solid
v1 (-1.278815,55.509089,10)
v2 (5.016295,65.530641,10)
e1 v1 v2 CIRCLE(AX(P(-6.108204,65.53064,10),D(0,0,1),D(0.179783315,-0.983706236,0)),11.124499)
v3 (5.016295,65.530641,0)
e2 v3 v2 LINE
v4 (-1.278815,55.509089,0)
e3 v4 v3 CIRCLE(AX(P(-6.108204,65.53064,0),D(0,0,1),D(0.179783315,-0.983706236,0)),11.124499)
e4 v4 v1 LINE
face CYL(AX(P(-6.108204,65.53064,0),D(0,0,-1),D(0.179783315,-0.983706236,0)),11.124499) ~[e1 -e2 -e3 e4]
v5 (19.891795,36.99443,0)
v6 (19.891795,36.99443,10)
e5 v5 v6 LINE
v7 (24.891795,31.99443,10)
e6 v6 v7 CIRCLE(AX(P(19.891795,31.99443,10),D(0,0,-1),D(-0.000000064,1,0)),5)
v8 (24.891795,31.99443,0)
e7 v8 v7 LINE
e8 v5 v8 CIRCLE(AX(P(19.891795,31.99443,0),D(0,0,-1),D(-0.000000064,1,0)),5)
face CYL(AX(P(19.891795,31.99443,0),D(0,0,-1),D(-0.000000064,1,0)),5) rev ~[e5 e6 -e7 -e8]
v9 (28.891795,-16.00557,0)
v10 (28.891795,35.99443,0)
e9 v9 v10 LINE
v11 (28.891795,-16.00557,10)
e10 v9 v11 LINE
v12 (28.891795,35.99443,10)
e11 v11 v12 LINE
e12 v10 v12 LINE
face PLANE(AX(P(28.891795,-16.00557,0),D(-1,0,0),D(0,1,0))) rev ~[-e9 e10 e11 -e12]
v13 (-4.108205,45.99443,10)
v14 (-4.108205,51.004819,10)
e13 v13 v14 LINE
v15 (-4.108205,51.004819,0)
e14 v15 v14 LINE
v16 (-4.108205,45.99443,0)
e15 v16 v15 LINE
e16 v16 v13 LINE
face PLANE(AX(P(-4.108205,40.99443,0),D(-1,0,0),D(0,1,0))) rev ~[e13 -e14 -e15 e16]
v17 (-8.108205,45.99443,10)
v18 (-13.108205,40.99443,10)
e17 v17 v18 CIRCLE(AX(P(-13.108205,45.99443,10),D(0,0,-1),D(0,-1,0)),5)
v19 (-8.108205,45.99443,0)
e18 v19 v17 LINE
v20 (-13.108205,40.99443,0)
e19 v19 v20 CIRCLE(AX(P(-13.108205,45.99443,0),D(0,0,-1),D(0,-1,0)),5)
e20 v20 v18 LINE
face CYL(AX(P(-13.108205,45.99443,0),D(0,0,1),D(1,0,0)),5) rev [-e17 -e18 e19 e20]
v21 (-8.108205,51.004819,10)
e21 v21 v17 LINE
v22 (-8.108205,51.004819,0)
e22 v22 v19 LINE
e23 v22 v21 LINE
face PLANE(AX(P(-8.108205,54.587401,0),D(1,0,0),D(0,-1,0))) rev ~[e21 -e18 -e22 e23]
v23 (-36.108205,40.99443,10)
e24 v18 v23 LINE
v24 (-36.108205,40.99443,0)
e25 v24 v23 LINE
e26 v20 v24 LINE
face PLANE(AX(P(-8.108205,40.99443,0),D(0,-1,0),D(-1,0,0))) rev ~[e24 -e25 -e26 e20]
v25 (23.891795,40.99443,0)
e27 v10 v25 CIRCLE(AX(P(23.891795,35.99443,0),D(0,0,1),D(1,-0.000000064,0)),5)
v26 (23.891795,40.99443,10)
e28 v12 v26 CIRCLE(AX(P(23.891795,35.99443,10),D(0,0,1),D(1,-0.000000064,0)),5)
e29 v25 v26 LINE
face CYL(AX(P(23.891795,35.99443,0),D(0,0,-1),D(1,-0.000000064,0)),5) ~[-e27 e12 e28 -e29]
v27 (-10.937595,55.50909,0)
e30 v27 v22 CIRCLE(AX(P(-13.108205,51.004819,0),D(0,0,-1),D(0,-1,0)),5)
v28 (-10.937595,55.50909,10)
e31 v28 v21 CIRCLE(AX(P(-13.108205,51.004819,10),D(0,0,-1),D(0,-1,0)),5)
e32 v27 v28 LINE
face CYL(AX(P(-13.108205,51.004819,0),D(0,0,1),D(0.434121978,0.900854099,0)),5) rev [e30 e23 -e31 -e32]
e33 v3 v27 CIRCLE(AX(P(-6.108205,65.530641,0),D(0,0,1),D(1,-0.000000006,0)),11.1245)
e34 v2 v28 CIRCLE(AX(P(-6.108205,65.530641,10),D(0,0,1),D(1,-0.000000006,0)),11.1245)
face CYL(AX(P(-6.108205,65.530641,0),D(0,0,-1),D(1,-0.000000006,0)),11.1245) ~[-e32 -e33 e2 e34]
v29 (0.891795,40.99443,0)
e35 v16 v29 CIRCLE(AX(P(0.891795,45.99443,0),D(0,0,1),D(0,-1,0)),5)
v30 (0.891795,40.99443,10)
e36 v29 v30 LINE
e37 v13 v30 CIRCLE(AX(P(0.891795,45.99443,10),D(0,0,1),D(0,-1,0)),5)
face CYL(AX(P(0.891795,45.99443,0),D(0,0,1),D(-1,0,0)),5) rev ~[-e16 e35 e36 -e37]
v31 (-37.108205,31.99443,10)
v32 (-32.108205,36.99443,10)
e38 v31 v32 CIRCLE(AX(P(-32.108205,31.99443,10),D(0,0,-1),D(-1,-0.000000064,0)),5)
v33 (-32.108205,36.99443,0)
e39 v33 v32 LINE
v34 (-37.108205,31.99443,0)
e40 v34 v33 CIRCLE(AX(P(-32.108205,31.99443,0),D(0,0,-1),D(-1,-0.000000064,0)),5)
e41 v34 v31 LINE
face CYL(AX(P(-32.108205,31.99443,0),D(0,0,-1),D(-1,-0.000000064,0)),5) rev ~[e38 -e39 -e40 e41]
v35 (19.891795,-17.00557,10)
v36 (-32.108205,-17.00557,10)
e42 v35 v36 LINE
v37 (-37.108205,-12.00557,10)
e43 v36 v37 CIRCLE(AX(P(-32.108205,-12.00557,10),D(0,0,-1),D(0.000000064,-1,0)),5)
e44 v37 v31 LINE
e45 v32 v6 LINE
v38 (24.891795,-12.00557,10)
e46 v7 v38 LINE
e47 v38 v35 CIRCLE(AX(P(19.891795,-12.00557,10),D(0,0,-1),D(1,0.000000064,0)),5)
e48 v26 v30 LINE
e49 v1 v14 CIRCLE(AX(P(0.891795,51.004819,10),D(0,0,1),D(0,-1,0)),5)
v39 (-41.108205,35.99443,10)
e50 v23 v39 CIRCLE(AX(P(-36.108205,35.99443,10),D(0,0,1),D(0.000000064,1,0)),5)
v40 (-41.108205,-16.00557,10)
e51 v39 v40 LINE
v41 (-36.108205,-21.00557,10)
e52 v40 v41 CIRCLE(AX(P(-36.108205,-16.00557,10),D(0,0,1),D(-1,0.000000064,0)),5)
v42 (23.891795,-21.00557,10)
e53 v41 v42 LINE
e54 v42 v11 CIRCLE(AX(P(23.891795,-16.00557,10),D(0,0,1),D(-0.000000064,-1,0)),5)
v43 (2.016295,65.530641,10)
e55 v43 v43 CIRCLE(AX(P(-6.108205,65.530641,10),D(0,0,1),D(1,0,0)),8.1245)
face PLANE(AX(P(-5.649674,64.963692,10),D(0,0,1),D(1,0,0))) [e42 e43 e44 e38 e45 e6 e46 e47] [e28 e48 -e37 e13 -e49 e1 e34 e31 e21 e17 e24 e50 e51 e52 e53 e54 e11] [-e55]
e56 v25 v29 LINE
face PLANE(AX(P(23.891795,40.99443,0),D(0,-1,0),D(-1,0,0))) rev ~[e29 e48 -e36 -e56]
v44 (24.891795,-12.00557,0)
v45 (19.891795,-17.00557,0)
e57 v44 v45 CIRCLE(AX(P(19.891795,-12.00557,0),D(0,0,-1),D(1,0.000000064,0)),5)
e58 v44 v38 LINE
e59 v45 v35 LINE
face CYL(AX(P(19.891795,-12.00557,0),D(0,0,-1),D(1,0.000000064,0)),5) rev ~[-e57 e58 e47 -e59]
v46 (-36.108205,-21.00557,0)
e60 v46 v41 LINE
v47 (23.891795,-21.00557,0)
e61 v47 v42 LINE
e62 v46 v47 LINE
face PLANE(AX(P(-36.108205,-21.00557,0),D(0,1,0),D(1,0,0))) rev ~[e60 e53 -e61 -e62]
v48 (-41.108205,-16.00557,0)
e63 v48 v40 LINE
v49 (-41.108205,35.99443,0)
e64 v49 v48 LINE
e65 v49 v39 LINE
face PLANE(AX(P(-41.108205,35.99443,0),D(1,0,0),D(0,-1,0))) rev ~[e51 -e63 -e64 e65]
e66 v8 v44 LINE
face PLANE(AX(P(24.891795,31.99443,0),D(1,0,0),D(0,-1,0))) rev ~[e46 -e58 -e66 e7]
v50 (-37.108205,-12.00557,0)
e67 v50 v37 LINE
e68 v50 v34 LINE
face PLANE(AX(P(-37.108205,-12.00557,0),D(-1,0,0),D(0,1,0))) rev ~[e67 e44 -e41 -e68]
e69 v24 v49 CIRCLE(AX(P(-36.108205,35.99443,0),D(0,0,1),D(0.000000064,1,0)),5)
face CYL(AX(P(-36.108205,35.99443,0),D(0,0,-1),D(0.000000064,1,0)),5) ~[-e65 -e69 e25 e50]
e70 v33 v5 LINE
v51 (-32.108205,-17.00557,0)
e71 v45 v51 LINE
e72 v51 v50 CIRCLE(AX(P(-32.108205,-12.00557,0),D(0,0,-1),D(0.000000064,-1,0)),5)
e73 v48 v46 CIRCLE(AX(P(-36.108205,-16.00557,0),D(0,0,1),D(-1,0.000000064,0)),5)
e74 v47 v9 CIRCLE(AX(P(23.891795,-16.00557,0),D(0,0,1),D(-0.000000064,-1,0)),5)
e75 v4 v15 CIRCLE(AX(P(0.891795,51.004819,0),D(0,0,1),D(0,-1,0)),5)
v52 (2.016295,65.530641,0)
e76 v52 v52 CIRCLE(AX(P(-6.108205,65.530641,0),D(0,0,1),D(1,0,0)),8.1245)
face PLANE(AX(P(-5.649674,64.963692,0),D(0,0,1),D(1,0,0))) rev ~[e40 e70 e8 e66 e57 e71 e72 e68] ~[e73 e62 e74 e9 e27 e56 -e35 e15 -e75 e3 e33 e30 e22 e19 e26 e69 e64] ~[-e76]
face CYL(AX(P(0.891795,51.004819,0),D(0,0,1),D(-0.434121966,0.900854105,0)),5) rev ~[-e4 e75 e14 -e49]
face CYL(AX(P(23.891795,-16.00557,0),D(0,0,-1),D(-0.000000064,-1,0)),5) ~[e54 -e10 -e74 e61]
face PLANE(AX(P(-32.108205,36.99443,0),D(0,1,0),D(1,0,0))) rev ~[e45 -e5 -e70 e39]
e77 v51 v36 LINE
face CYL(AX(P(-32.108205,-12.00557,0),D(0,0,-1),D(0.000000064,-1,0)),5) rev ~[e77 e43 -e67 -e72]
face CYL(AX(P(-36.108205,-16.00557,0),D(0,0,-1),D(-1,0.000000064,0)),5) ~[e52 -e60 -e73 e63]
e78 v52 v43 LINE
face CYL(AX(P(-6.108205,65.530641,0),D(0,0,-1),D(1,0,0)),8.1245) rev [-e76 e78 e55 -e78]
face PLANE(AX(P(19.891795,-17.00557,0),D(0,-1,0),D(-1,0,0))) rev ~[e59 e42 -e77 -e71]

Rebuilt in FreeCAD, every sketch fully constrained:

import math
import FreeCAD as App
import Part
import Sketcher


def edges_at(feature, points):
    """Names of the edges that pass closest to the given points."""
    edges = feature.Shape.Edges
    near = lambda p: min(range(len(edges)), key=lambda i: edges[i].distToShape(Part.Vertex(*p))[0])
    return sorted({f"Edge{near(p) + 1}" for p in points})

doc = App.newDocument("Part")
body = doc.addObject("PartDesign::Body", "Body")

sketch1 = body.newObject("Sketcher::SketchObject", "Sketch")
sketch1.AttachmentSupport = (doc.getObject("XY_Plane"), [""])
sketch1.MapMode = "FlatFace"
sketch1.addGeometry(Part.ArcOfCircle(Part.Circle(App.Vector(-6.1, 65.5, 0), App.Vector(0, 0, 1), 11.1), math.radians(0), math.radians(260)), False)
sketch1.addGeometry(Part.LineSegment(App.Vector(-8.1, 54.6, 0), App.Vector(-8.1, 41, 0)), False)
sketch1.addGeometry(Part.LineSegment(App.Vector(-8.1, 41, 0), App.Vector(-36.1, 41, 0)), False)
sketch1.addGeometry(Part.ArcOfCircle(Part.Circle(App.Vector(-36.1, 36, 0), App.Vector(0, 0, 1), 5), math.radians(90), math.radians(180)), False)
sketch1.addGeometry(Part.LineSegment(App.Vector(-41.1, 36, 0), App.Vector(-41.1, -16, 0)), False)
sketch1.addGeometry(Part.ArcOfCircle(Part.Circle(App.Vector(-36.1, -16, 0), App.Vector(0, 0, 1), 5), math.radians(180), math.radians(270)), False)
sketch1.addGeometry(Part.LineSegment(App.Vector(-36.1, -21, 0), App.Vector(23.9, -21, 0)), False)
sketch1.addGeometry(Part.ArcOfCircle(Part.Circle(App.Vector(23.9, -16, 0), App.Vector(0, 0, 1), 5), math.radians(-90), math.radians(0)), False)
sketch1.addGeometry(Part.LineSegment(App.Vector(28.9, -16, 0), App.Vector(28.9, 36, 0)), False)
sketch1.addGeometry(Part.ArcOfCircle(Part.Circle(App.Vector(23.9, 36, 0), App.Vector(0, 0, 1), 5), math.radians(0), math.radians(90)), False)
sketch1.addGeometry(Part.LineSegment(App.Vector(23.9, 41, 0), App.Vector(-4.1, 41, 0)), False)
sketch1.addGeometry(Part.LineSegment(App.Vector(-4.1, 41, 0), App.Vector(-4.1, 54.6, 0)), False)
sketch1.addGeometry(Part.ArcOfCircle(Part.Circle(App.Vector(-6.1, 65.5, 0), App.Vector(0, 0, 1), 11.1), math.radians(-80), math.radians(0)), False)
sketch1.addGeometry(Part.LineSegment(App.Vector(-37.1, -12, 0), App.Vector(-37.1, 32, 0)), False)
sketch1.addGeometry(Part.ArcOfCircle(Part.Circle(App.Vector(-32.1, 32, 0), App.Vector(0, 0, 1), 5), math.radians(90), math.radians(180)), False)
sketch1.addGeometry(Part.LineSegment(App.Vector(-32.1, 37, 0), App.Vector(19.9, 37, 0)), False)
sketch1.addGeometry(Part.ArcOfCircle(Part.Circle(App.Vector(19.9, 32, 0), App.Vector(0, 0, 1), 5), math.radians(0), math.radians(90)), False)
sketch1.addGeometry(Part.LineSegment(App.Vector(24.9, 32, 0), App.Vector(24.9, -12, 0)), False)
sketch1.addGeometry(Part.ArcOfCircle(Part.Circle(App.Vector(19.9, -12, 0), App.Vector(0, 0, 1), 5), math.radians(-90), math.radians(0)), False)
sketch1.addGeometry(Part.LineSegment(App.Vector(19.9, -17, 0), App.Vector(-32.1, -17, 0)), False)
sketch1.addGeometry(Part.ArcOfCircle(Part.Circle(App.Vector(-32.1, -12, 0), App.Vector(0, 0, 1), 5), math.radians(180), math.radians(270)), False)
sketch1.addGeometry(Part.Circle(App.Vector(-6.1, 65.5, 0), App.Vector(0, 0, 1), 8.1), False)
sketch1.addConstraint(Sketcher.Constraint("Coincident", 0, 2, 1, 1))
sketch1.addConstraint(Sketcher.Constraint("Coincident", 1, 2, 2, 1))
sketch1.addConstraint(Sketcher.Constraint("Tangent", 2, 2, 3, 1))
sketch1.addConstraint(Sketcher.Constraint("Tangent", 3, 2, 4, 1))
sketch1.addConstraint(Sketcher.Constraint("Tangent", 4, 2, 5, 1))
sketch1.addConstraint(Sketcher.Constraint("Tangent", 5, 2, 6, 1))
sketch1.addConstraint(Sketcher.Constraint("Tangent", 6, 2, 7, 1))
sketch1.addConstraint(Sketcher.Constraint("Tangent", 7, 2, 8, 1))
sketch1.addConstraint(Sketcher.Constraint("Tangent", 8, 2, 9, 1))
sketch1.addConstraint(Sketcher.Constraint("Tangent", 9, 2, 10, 1))
sketch1.addConstraint(Sketcher.Constraint("Coincident", 10, 2, 11, 1))
sketch1.addConstraint(Sketcher.Constraint("Coincident", 11, 2, 12, 1))
sketch1.addConstraint(Sketcher.Constraint("Tangent", 12, 2, 0, 1))
sketch1.addConstraint(Sketcher.Constraint("Tangent", 13, 2, 14, 2))
sketch1.addConstraint(Sketcher.Constraint("Tangent", 14, 1, 15, 1))
sketch1.addConstraint(Sketcher.Constraint("Tangent", 15, 2, 16, 2))
sketch1.addConstraint(Sketcher.Constraint("Tangent", 16, 1, 17, 1))
sketch1.addConstraint(Sketcher.Constraint("Tangent", 17, 2, 18, 2))
sketch1.addConstraint(Sketcher.Constraint("Tangent", 18, 1, 19, 1))
sketch1.addConstraint(Sketcher.Constraint("Tangent", 19, 2, 20, 2))
sketch1.addConstraint(Sketcher.Constraint("Tangent", 20, 1, 13, 1))
sketch1.addConstraint(Sketcher.Constraint("Vertical", 1))
sketch1.addConstraint(Sketcher.Constraint("Horizontal", 2))
sketch1.addConstraint(Sketcher.Constraint("Vertical", 4))
sketch1.addConstraint(Sketcher.Constraint("Horizontal", 6))
sketch1.addConstraint(Sketcher.Constraint("Vertical", 8))
sketch1.addConstraint(Sketcher.Constraint("Horizontal", 10))
sketch1.addConstraint(Sketcher.Constraint("Vertical", 11))
sketch1.addConstraint(Sketcher.Constraint("Vertical", 13))
sketch1.addConstraint(Sketcher.Constraint("Horizontal", 15))
sketch1.addConstraint(Sketcher.Constraint("Vertical", 17))
sketch1.addConstraint(Sketcher.Constraint("Horizontal", 19))
sketch1.addConstraint(Sketcher.Constraint("Coincident", 21, 3, 0, 3))
sketch1.addConstraint(Sketcher.Constraint("Equal", 3, 5))
sketch1.addConstraint(Sketcher.Constraint("Equal", 5, 7))
sketch1.addConstraint(Sketcher.Constraint("Equal", 7, 9))
sketch1.addConstraint(Sketcher.Constraint("Equal", 0, 12))
sketch1.addConstraint(Sketcher.Constraint("Equal", 9, 14))
sketch1.addConstraint(Sketcher.Constraint("Equal", 14, 16))
sketch1.addConstraint(Sketcher.Constraint("Equal", 16, 18))
sketch1.addConstraint(Sketcher.Constraint("Equal", 18, 20))
sketch1.addConstraint(Sketcher.Constraint("Horizontal", 3, 3, 9, 3))
sketch1.addConstraint(Sketcher.Constraint("Horizontal", 0, 2, 11, 2))
sketch1.addConstraint(Sketcher.Constraint("Horizontal", 21, 3, 12, 2))
sketch1.addConstraint(Sketcher.Constraint("Equal", 2, 10))
sketch1.addConstraint(Sketcher.Constraint("Equal", 19, 4))
sketch1.addConstraint(Sketcher.Constraint("Radius", 3, 5.0))
sketch1.addConstraint(Sketcher.Constraint("DistanceX", 2, 2, 2, 1, 28.0))
sketch1.addConstraint(Sketcher.Constraint("DistanceX", 6, 1, 6, 2, 60.0))
sketch1.addConstraint(Sketcher.Constraint("DistanceX", 15, 1, 15, 2, 52.0))
sketch1.addConstraint(Sketcher.Constraint("DistanceY", 13, 1, 13, 2, 44.0))
sketch1.addConstraint(Sketcher.Constraint("Diameter", 21, 16.249))
sketch1.addConstraint(Sketcher.Constraint("DistanceX", 3, 3, 14, 3, 4.0))
sketch1.addConstraint(Sketcher.Constraint("DistanceY", 14, 3, 3, 3, 4.0))
sketch1.addConstraint(Sketcher.Constraint("Radius", 0, 11.1245))
sketch1.addConstraint(Sketcher.Constraint("DistanceY", 1, 2, 1, 1, 13.592971))
sketch1.addConstraint(Sketcher.Constraint("DistanceY", -1, 1, 0, 2, 54.587401))
sketch1.addConstraint(Sketcher.Constraint("DistanceX", 0, 3, -1, 1, 6.108205))
pad1 = body.newObject("PartDesign::Pad", "Pad")
pad1.Profile = sketch1
pad1.Length = 10
doc.recompute()

fillet = body.newObject("PartDesign::Fillet", "Fillet")
fillet.Base = (pad1, edges_at(pad1, [
    (-4.108, 54.587, 5),
    (-8.108, 54.587, 5),
    (-8.108, 40.994, 5),
    (-4.108, 40.994, 5),
]))
fillet.Radius = 5

doc.recompute()
